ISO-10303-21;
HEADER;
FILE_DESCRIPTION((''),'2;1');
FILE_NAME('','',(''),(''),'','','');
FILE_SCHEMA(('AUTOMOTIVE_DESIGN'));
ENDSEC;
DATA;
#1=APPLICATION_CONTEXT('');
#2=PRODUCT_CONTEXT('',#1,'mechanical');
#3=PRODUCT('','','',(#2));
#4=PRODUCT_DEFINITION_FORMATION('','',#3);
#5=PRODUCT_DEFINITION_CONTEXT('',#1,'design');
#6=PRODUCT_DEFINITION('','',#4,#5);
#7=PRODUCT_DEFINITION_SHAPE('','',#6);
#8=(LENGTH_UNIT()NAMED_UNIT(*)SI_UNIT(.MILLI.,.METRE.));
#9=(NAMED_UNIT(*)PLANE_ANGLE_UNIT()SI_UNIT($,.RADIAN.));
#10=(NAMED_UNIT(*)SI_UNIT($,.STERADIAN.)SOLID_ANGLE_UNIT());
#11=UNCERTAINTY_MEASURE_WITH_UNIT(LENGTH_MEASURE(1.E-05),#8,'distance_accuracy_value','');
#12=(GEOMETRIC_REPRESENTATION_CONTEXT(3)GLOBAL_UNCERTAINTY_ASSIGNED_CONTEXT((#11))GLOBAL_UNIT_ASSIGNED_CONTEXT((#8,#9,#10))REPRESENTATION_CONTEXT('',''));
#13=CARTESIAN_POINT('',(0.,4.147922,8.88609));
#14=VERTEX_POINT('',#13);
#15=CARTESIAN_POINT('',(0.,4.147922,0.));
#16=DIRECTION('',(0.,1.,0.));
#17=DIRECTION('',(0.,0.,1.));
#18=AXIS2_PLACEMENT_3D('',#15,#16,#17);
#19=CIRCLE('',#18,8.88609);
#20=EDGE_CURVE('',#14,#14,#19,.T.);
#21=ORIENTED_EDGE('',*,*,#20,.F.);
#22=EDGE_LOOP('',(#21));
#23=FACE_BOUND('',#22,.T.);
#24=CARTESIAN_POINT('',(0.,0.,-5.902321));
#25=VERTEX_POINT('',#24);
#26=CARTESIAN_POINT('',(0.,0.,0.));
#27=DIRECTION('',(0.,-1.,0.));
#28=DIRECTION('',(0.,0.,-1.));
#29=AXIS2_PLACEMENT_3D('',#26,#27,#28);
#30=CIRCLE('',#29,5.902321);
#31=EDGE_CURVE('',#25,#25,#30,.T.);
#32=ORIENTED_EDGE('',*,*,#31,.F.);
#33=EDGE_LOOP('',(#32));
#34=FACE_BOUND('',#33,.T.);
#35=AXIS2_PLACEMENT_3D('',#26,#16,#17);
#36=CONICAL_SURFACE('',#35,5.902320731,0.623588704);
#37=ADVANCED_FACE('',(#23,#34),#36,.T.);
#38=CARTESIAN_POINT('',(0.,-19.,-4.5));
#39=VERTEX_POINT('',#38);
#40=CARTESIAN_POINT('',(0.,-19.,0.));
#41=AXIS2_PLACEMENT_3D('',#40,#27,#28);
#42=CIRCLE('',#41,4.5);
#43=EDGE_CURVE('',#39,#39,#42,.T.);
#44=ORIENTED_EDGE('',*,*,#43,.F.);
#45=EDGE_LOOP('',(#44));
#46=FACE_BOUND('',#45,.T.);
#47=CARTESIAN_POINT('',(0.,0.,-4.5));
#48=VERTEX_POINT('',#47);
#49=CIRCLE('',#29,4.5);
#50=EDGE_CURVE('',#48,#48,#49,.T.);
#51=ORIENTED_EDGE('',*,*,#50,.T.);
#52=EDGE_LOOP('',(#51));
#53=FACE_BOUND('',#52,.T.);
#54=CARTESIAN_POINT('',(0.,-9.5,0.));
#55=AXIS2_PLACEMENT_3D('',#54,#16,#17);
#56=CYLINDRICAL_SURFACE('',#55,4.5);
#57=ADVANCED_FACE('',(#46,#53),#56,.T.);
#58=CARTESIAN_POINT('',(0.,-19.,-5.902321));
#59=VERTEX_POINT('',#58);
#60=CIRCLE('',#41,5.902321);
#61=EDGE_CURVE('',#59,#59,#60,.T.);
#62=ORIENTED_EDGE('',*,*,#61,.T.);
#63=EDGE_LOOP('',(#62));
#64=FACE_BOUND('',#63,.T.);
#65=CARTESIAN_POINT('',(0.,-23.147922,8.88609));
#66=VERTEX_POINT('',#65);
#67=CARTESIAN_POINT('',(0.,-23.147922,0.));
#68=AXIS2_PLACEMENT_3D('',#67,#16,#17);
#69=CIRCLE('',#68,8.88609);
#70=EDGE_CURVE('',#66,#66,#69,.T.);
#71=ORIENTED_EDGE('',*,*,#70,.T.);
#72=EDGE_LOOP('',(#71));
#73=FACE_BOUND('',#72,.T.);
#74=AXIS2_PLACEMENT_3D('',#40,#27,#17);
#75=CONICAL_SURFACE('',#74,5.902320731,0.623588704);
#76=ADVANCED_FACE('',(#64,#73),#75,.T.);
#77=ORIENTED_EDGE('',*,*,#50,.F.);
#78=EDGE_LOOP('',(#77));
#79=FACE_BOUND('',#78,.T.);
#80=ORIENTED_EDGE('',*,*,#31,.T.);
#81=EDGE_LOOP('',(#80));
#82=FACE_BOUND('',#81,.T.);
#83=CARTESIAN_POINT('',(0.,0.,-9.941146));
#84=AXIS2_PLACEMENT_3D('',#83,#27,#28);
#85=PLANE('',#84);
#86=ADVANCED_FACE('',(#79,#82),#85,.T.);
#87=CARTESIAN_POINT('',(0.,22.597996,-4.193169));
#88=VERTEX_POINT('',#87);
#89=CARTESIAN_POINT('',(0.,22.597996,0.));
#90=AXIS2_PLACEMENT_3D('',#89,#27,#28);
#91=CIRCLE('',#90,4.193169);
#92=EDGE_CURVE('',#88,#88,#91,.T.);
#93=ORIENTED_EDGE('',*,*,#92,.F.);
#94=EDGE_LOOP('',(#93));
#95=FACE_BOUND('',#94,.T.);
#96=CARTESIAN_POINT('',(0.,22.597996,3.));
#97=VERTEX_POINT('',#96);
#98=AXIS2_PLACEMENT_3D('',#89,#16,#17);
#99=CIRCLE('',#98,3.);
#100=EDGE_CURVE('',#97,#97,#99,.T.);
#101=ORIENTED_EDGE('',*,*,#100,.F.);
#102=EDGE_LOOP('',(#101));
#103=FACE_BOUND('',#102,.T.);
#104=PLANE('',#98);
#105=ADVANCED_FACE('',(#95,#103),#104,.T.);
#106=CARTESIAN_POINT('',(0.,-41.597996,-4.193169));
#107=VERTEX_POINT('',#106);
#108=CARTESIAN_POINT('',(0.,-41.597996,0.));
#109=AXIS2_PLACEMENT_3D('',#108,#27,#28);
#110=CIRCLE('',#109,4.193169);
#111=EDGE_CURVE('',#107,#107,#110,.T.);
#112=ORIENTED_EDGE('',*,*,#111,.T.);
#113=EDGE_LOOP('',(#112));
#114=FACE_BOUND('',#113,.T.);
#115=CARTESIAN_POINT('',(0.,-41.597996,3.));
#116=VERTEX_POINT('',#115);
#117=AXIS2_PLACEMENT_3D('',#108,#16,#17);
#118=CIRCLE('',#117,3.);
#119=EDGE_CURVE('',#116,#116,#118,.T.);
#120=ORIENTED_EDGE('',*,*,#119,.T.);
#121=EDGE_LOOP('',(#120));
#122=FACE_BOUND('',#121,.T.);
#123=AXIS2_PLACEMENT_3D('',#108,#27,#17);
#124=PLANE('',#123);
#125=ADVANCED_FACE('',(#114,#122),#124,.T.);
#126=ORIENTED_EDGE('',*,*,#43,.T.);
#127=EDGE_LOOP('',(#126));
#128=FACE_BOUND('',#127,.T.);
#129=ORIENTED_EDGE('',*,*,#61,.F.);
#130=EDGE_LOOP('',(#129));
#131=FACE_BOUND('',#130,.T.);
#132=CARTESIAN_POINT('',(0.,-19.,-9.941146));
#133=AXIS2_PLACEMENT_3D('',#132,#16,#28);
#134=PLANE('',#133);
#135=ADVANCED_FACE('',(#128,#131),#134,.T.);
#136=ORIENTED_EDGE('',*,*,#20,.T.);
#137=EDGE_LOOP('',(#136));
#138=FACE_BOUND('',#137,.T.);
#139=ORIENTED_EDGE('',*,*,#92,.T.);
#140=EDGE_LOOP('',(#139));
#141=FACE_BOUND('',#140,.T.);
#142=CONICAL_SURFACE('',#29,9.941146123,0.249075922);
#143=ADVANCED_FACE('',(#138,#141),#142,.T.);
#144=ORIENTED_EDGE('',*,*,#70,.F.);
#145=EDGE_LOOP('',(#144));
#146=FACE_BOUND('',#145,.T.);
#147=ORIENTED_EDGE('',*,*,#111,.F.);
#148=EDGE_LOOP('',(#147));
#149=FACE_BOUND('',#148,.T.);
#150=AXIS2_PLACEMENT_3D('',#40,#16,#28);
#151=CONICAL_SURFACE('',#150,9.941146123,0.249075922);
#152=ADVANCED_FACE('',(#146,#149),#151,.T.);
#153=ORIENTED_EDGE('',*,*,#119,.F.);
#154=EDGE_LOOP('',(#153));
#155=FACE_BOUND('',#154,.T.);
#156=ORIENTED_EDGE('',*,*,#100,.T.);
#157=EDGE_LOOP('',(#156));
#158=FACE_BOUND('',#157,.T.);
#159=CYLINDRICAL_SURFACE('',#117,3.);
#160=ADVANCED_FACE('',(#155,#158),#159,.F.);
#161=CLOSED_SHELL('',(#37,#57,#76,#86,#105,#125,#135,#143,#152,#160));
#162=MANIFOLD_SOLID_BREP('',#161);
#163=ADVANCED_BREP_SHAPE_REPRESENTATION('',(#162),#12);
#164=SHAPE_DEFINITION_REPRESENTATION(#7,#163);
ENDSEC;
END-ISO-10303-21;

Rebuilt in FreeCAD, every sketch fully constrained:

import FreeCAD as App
import Part
import Sketcher

V = App.Vector
Q = App.Units.Quantity


def edges_at(feature, points):
    """Names of the edges that pass closest to the given points."""
    edges = feature.Shape.Edges
    near = lambda p: min(range(len(edges)), key=lambda i: edges[i].distToShape(Part.Vertex(*p))[0])
    return sorted({f"Edge{near(p) + 1}" for p in points})

doc = App.newDocument("Part")
body = doc.addObject("PartDesign::Body", "Body")

# Sketch on YZ plane
sketch1 = doc.addObject("Sketcher::SketchObject", "Sketch")
body.addObject(sketch1)
sketch1.AttachmentSupport = (doc.YZ_Plane, [""])
sketch1.MapMode = "FlatFace"
sketch1.addGeometry(Part.LineSegment(V(22.6, 0, 0), V(0, 0, 0)), False)
sketch1.addGeometry(Part.LineSegment(V(0, 0, 0), V(0, -9.9, 0)), False)
sketch1.addGeometry(Part.LineSegment(V(0, -9.9, 0), V(22.6, -4.2, 0)), False)
sketch1.addGeometry(Part.LineSegment(V(22.6, -4.2, 0), V(22.6, 0, 0)), False)
sketch1.addConstraint(Sketcher.Constraint("Coincident", 0, 2, 1, 1))
sketch1.addConstraint(Sketcher.Constraint("Coincident", 1, 2, 2, 1))
sketch1.addConstraint(Sketcher.Constraint("Coincident", 2, 2, 3, 1))
sketch1.addConstraint(Sketcher.Constraint("Coincident", 3, 2, 0, 1))
sketch1.addConstraint(Sketcher.Constraint("Horizontal", 0))
sketch1.addConstraint(Sketcher.Constraint("Vertical", 1))
sketch1.addConstraint(Sketcher.Constraint("Vertical", 3))
sketch1.addConstraint(Sketcher.Constraint("Coincident", 0, 2, -1, 1))
sketch1.addConstraint(Sketcher.Constraint("DistanceY", 3, 1, 3, 2, Q("4.193169 mm")))
sketch1.addConstraint(Sketcher.Constraint("Distance", 2, Q("23.317561 mm")))
sketch1.addConstraint(Sketcher.Constraint("DistanceX", 0, 2, 0, 1, Q("22.597996 mm")))
revolution = doc.addObject("PartDesign::Revolution", "Revolution")
body.addObject(revolution)
revolution.Profile = sketch1
revolution.ReferenceAxis = (sketch1, ["H_Axis"])
revolution.Angle = 360
doc.recompute()

chamfer = doc.addObject("PartDesign::Chamfer", "Chamfer")
body.addObject(chamfer)
chamfer.Base = (revolution, edges_at(revolution, [(0, 0, 9.941)]))
chamfer.ChamferType = "Two distances"
chamfer.Size = 4.28
chamfer.Size2 = 4.038825
chamfer.FlipDirection = True

# Sketch on XZ plane
sketch2 = doc.addObject("Sketcher::SketchObject", "Sketch001")
body.addObject(sketch2)
sketch2.AttachmentSupport = (doc.XZ_Plane, [""])
sketch2.MapMode = "FlatFace"
sketch2.addGeometry(Part.Circle(V(0, 0, 0), V(0, 0, 1), 4.5), False)
sketch2.addConstraint(Sketcher.Constraint("Coincident", 0, 3, -1, 1))
sketch2.addConstraint(Sketcher.Constraint("Diameter", 0, Q("9 mm")))
pad1 = doc.addObject("PartDesign::Pad", "Pad")
body.addObject(pad1)
pad1.Profile = sketch2
pad1.Length = 9.5
body2 = doc.addObject("PartDesign::Body", "Body001")
doc.recompute()

body2.BaseFeature = body
doc.recompute()

mirroring = doc.addObject("Part::Mirroring", "Mirroring")
mirroring.Source = body
mirroring.Base = V(0, -9.5, 0)
mirroring.Normal = V(0, -1, 0)
body3 = doc.addObject("PartDesign::Body", "Body002")
body3.BaseFeature = mirroring
boolean = doc.addObject("PartDesign::Boolean", "Boolean")
body2.addObject(boolean)
boolean.Type = "Fuse"
boolean.addObjects([body3])
doc.recompute()

# Sketch on XZ plane
sketch3 = doc.addObject("Sketcher::SketchObject", "Sketch002")
body2.addObject(sketch3)
sketch3.AttachmentSupport = (doc.getObject("XZ_Plane001"), [""])
sketch3.MapMode = "FlatFace"
sketch3.AttachmentOffset = App.Placement(V(0, 0, -22.597996), App.Rotation())
sketch3.addGeometry(Part.Circle(V(0, 0, 0), V(0, 0, 1), 3), False)
sketch3.addConstraint(Sketcher.Constraint("Coincident", 0, 3, -1, 1))
sketch3.addConstraint(Sketcher.Constraint("Diameter", 0, Q("6 mm")))
pocket1 = doc.addObject("PartDesign::Pocket", "Pocket")
body2.addObject(pocket1)
pocket1.Profile = sketch3
pocket1.Type = "ThroughAll"
pocket1.Reversed = True
mirroring.Visibility = False

doc.recompute()
